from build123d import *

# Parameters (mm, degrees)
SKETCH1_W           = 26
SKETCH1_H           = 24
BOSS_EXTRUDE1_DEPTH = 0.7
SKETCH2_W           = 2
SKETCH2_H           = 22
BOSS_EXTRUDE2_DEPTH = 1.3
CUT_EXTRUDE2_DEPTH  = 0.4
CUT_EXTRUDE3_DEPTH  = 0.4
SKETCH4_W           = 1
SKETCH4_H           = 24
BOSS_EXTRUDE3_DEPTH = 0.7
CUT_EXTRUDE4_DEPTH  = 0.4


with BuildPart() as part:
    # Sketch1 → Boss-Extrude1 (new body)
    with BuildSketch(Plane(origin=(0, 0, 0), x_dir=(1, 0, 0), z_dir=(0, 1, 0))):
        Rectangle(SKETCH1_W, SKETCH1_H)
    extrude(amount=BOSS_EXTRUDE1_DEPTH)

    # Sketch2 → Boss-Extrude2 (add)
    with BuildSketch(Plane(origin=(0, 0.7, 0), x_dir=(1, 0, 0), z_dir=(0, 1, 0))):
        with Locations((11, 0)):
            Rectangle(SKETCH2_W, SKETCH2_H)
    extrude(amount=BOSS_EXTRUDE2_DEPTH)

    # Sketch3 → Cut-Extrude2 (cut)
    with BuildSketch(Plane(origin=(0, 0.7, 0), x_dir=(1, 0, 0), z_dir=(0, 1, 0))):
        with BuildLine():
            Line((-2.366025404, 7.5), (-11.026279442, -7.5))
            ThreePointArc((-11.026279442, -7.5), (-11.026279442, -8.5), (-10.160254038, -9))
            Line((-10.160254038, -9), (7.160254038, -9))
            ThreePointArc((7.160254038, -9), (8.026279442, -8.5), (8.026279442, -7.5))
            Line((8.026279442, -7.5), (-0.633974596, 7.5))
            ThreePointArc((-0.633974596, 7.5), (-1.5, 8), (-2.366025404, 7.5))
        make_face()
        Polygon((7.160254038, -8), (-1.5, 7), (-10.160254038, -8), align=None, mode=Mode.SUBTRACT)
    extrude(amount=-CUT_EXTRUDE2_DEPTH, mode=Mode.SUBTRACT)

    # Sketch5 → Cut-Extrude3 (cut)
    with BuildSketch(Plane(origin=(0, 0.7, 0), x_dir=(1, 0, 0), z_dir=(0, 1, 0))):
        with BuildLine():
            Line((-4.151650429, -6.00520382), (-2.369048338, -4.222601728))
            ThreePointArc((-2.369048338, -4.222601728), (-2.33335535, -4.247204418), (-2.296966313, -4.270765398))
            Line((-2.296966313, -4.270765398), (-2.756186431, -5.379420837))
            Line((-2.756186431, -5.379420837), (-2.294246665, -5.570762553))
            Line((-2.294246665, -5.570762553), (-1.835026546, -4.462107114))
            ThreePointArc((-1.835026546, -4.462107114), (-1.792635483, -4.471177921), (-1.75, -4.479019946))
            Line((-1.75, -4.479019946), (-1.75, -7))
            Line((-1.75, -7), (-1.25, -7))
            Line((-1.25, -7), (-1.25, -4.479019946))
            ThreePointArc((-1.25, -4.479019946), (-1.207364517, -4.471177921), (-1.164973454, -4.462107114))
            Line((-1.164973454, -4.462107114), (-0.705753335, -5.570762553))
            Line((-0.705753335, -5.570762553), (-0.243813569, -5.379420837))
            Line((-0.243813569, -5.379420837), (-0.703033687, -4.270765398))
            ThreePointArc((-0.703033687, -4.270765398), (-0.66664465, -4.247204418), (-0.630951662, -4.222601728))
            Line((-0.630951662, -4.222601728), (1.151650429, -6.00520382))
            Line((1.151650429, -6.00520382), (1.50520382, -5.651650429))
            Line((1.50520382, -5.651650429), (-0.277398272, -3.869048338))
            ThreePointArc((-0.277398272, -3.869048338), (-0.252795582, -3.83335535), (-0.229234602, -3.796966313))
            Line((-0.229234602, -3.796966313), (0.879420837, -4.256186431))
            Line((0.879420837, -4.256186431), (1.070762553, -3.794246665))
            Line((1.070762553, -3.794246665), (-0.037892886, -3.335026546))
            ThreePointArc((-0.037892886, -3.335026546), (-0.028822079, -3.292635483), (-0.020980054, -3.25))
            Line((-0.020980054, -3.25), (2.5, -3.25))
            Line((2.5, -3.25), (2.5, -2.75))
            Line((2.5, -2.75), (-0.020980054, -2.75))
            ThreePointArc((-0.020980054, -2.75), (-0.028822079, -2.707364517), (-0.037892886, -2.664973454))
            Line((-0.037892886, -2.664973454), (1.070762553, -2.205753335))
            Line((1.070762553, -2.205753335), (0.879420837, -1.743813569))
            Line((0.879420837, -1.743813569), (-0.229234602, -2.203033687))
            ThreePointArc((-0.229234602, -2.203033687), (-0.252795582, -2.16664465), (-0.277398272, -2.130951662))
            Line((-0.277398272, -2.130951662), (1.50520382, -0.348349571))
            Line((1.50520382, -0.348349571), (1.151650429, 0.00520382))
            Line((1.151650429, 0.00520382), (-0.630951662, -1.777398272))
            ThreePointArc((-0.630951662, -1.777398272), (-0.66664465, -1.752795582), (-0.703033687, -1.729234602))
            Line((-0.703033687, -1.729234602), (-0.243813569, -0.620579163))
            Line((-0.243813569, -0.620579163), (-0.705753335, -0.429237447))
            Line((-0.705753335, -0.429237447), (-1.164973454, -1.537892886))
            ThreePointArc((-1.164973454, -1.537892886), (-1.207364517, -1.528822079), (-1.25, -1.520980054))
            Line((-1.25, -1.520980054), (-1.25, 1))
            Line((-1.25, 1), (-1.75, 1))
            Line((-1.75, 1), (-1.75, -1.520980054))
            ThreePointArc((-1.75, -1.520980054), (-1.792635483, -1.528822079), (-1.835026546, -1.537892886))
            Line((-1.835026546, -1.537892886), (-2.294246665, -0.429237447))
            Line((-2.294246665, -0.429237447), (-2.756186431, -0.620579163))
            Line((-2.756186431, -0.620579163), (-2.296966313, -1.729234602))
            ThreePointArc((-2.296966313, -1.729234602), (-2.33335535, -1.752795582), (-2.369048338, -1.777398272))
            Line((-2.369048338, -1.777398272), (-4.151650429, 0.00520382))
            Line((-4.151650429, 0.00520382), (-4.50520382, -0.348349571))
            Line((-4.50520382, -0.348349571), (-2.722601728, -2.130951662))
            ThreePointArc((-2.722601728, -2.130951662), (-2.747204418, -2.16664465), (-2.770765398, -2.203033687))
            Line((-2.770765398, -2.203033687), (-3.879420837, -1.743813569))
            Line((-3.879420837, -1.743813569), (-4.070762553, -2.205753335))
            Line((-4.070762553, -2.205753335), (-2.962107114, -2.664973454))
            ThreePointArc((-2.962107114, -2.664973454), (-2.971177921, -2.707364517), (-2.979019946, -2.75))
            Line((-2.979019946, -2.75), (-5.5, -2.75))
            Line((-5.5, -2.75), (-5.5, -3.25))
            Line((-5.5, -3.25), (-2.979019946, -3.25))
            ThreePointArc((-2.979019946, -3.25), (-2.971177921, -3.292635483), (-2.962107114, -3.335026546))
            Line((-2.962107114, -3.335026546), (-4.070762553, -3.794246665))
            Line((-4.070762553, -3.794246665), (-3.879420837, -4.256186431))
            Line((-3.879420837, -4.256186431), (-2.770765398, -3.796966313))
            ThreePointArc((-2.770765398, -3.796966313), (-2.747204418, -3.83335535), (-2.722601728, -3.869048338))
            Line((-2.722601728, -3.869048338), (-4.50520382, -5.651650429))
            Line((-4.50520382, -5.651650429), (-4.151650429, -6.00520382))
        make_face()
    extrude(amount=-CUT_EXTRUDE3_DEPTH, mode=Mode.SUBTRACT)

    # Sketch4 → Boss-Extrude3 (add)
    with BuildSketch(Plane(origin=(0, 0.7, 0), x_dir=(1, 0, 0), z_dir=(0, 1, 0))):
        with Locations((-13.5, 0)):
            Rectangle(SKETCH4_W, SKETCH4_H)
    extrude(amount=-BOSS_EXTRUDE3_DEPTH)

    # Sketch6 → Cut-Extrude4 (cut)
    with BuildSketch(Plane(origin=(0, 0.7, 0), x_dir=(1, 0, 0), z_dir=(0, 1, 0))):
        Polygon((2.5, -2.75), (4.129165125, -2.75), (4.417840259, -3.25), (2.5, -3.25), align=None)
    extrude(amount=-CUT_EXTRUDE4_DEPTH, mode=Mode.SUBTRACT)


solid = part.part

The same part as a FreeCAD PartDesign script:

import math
import FreeCAD as App
import Part
import Sketcher
from FreeCAD import Vector
Q = App.Units.Quantity

doc = App.newDocument("Part")
params = doc.addObject("Spreadsheet::Sheet", "Params")
for row, (alias, value) in enumerate([
    ("sketch1_width", "26 mm"),
    ("sketch1_height", "24 mm"),
    ("pad1_length", "0.7 mm"),
    ("sketch2_width", "2 mm"),
    ("sketch2_height", "22 mm"),
    ("pad2_length", "1.3 mm"),
    ("sketch3_radius", "1 mm"),
    ("pocket1_length", "0.4 mm"),
    ("sketch4_radius", "1.5 mm"),
    ("sketch4_width", "0.5 mm"),
    ("sketch4_length", "1.2 mm"),
    ("sketch4_length2", "0.5 mm"),
    ("pocket2_length", "0.4 mm"),
    ("sketch5_width", "1 mm"),
    ("sketch5_height", "24 mm"),
    ("pad3_length", "0.7 mm"),
    ("sketch6_height", "0.5 mm"),
    ("pocket3_length", "0.4 mm"),
], start=1):
    params.set(f"A{row}", alias)
    params.set(f"B{row}", "=" + value)
    params.setAlias(f"B{row}", alias)

body = doc.addObject("PartDesign::Body", "Body")

# Sketch on XZ plane
sketch1 = doc.addObject("Sketcher::SketchObject", "Sketch")
body.addObject(sketch1)
sketch1.AttachmentSupport = (doc.XZ_Plane, [""])
sketch1.MapMode = "FlatFace"
sketch1.addGeometry(Part.LineSegment(Vector(-13, -12, 0), Vector(-13, 12, 0)), False)
sketch1.addGeometry(Part.LineSegment(Vector(-13, 12, 0), Vector(13, 12, 0)), False)
sketch1.addGeometry(Part.LineSegment(Vector(13, 12, 0), Vector(13, -12, 0)), False)
sketch1.addGeometry(Part.LineSegment(Vector(13, -12, 0), Vector(-13, -12, 0)), False)
sketch1.addConstraint(Sketcher.Constraint("Coincident", 0, 2, 1, 1))
sketch1.addConstraint(Sketcher.Constraint("Coincident", 1, 2, 2, 1))
sketch1.addConstraint(Sketcher.Constraint("Coincident", 2, 2, 3, 1))
sketch1.addConstraint(Sketcher.Constraint("Coincident", 3, 2, 0, 1))
sketch1.addConstraint(Sketcher.Constraint("Vertical", 0))
sketch1.addConstraint(Sketcher.Constraint("Horizontal", 1))
sketch1.addConstraint(Sketcher.Constraint("Vertical", 2))
sketch1.addConstraint(Sketcher.Constraint("Horizontal", 3))
sketch1.addConstraint(Sketcher.Constraint("Symmetric", 0, 2, 2, 2, -1, 1))
sketch1.addConstraint(Sketcher.Constraint("DistanceX", 1, 1, 1, 2, Q("26 mm")))
sketch1.addConstraint(Sketcher.Constraint("DistanceY", 0, 1, 0, 2, Q("24 mm")))
sketch1.setExpression("Constraints[9]", "Params.sketch1_width")
sketch1.setExpression("Constraints[10]", "Params.sketch1_height")
pad1 = doc.addObject("PartDesign::Pad", "Pad")
body.addObject(pad1)
pad1.Profile = sketch1
pad1.setExpression("Length", "Params.pad1_length")
pad1.Reversed = True

# Sketch on XZ plane
sketch2 = doc.addObject("Sketcher::SketchObject", "Sketch001")
body.addObject(sketch2)
sketch2.AttachmentSupport = (doc.XZ_Plane, [""])
sketch2.MapMode = "FlatFace"
sketch2.AttachmentOffset = App.Placement(Vector(0, 0, -0.7), App.Rotation())
sketch2.addGeometry(Part.LineSegment(Vector(10, -11, 0), Vector(10, 11, 0)), False)
sketch2.addGeometry(Part.LineSegment(Vector(10, 11, 0), Vector(12, 11, 0)), False)
sketch2.addGeometry(Part.LineSegment(Vector(12, 11, 0), Vector(12, -11, 0)), False)
sketch2.addGeometry(Part.LineSegment(Vector(12, -11, 0), Vector(10, -11, 0)), False)
sketch2.addConstraint(Sketcher.Constraint("Coincident", 0, 2, 1, 1))
sketch2.addConstraint(Sketcher.Constraint("Coincident", 1, 2, 2, 1))
sketch2.addConstraint(Sketcher.Constraint("Coincident", 2, 2, 3, 1))
sketch2.addConstraint(Sketcher.Constraint("Coincident", 3, 2, 0, 1))
sketch2.addConstraint(Sketcher.Constraint("Vertical", 0))
sketch2.addConstraint(Sketcher.Constraint("Horizontal", 1))
sketch2.addConstraint(Sketcher.Constraint("Vertical", 2))
sketch2.addConstraint(Sketcher.Constraint("Horizontal", 3))
sketch2.addConstraint(Sketcher.Constraint("DistanceX", 1, 1, 1, 2, Q("2 mm")))
sketch2.addConstraint(Sketcher.Constraint("DistanceY", 0, 1, 0, 2, Q("22 mm")))
sketch2.addConstraint(Sketcher.Constraint("DistanceX", -1, 1, 0, 2, Q("10 mm")))
sketch2.addConstraint(Sketcher.Constraint("DistanceY", -1, 1, 0, 2, Q("11 mm")))
sketch2.setExpression("Constraints[8]", "Params.sketch2_width")
sketch2.setExpression("Constraints[9]", "Params.sketch2_height")
pad2 = doc.addObject("PartDesign::Pad", "Pad001")
body.addObject(pad2)
pad2.Profile = sketch2
pad2.setExpression("Length", "Params.pad2_length")
pad2.Reversed = True

# Sketch on XZ plane
sketch3 = doc.addObject("Sketcher::SketchObject", "Sketch002")
body.addObject(sketch3)
sketch3.AttachmentSupport = (doc.XZ_Plane, [""])
sketch3.MapMode = "FlatFace"
sketch3.AttachmentOffset = App.Placement(Vector(0, 0, -0.7), App.Rotation())
sketch3.addGeometry(Part.LineSegment(Vector(-2.4, -7.5, 0), Vector(-11, 7.5, 0)), False)
sketch3.addGeometry(Part.ArcOfCircle(Part.Circle(Vector(-10.2, 8, 0), Vector(0, 0, 1), 1), math.radians(90), math.radians(210)), False)
sketch3.addGeometry(Part.LineSegment(Vector(-10.2, 9, 0), Vector(7.2, 9, 0)), False)
sketch3.addGeometry(Part.ArcOfCircle(Part.Circle(Vector(7.2, 8, 0), Vector(0, 0, 1), 1), math.radians(-30), math.radians(90)), False)
sketch3.addGeometry(Part.LineSegment(Vector(8, 7.5, 0), Vector(-0.6, -7.5, 0)), False)
sketch3.addGeometry(Part.ArcOfCircle(Part.Circle(Vector(-1.5, -7, 0), Vector(0, 0, 1), 1), math.radians(-150), math.radians(-30)), False)
sketch3.addGeometry(Part.LineSegment(Vector(-1.5, -7, 0), Vector(7.2, 8, 0)), False)
sketch3.addGeometry(Part.LineSegment(Vector(7.2, 8, 0), Vector(-10.2, 8, 0)), False)
sketch3.addGeometry(Part.LineSegment(Vector(-10.2, 8, 0), Vector(-1.5, -7, 0)), False)
sketch3.addConstraint(Sketcher.Constraint("Tangent", 0, 2, 1, 2))
sketch3.addConstraint(Sketcher.Constraint("Tangent", 1, 1, 2, 1))
sketch3.addConstraint(Sketcher.Constraint("Tangent", 2, 2, 3, 2))
sketch3.addConstraint(Sketcher.Constraint("Tangent", 3, 1, 4, 1))
sketch3.addConstraint(Sketcher.Constraint("Tangent", 4, 2, 5, 2))
sketch3.addConstraint(Sketcher.Constraint("Tangent", 5, 1, 0, 1))
sketch3.addConstraint(Sketcher.Constraint("Coincident", 6, 2, 7, 1))
sketch3.addConstraint(Sketcher.Constraint("Coincident", 7, 2, 8, 1))
sketch3.addConstraint(Sketcher.Constraint("Coincident", 8, 2, 6, 1))
sketch3.addConstraint(Sketcher.Constraint("Horizontal", 2))
sketch3.addConstraint(Sketcher.Constraint("Horizontal", 7))
sketch3.addConstraint(Sketcher.Constraint("Coincident", 6, 2, 3, 3))
sketch3.addConstraint(Sketcher.Constraint("Coincident", 7, 2, 1, 3))
sketch3.addConstraint(Sketcher.Constraint("Coincident", 8, 2, 5, 3))
sketch3.addConstraint(Sketcher.Constraint("Equal", 3, 5))
sketch3.addConstraint(Sketcher.Constraint("Horizontal", 0, 2, 3, 1))
sketch3.addConstraint(Sketcher.Constraint("Radius", 1, Q("1 mm")))
sketch3.addConstraint(Sketcher.Constraint("Angle", 0, Q("120 deg")))
sketch3.addConstraint(Sketcher.Constraint("DistanceY", -1, 1, 1, 3, Q("8 mm")))
sketch3.addConstraint(Sketcher.Constraint("DistanceY", 5, 3, -1, 1, Q("7 mm")))
sketch3.addConstraint(Sketcher.Constraint("DistanceX", 5, 3, -1, 1, Q("1.5 mm")))
sketch3.setExpression("Constraints[16]", "Params.sketch3_radius")
pocket1 = doc.addObject("PartDesign::Pocket", "Pocket")
body.addObject(pocket1)
pocket1.Profile = sketch3
pocket1.setExpression("Length", "Params.pocket1_length")
pocket1.Reversed = True

# Sketch on XZ plane
sketch4 = doc.addObject("Sketcher::SketchObject", "Sketch003")
body.addObject(sketch4)
sketch4.AttachmentSupport = (doc.XZ_Plane, [""])
sketch4.MapMode = "FlatFace"
sketch4.AttachmentOffset = App.Placement(Vector(0, 0, -0.7), App.Rotation())
sketch4.addGeometry(Part.LineSegment(Vector(-4.15, 6.01, 0), Vector(-2.37, 4.22, 0)), False)
sketch4.addGeometry(Part.ArcOfCircle(Part.Circle(Vector(-1.5, 3, 0), Vector(0, 0, 1), 1.5), math.radians(122.09), math.radians(125.41)), False)
sketch4.addGeometry(Part.LineSegment(Vector(-2.3, 4.27, 0), Vector(-2.76, 5.38, 0)), False)
sketch4.addGeometry(Part.LineSegment(Vector(-2.76, 5.38, 0), Vector(-2.29, 5.57, 0)), False)
sketch4.addGeometry(Part.LineSegment(Vector(-2.29, 5.57, 0), Vector(-1.84, 4.46, 0)), False)
sketch4.addGeometry(Part.ArcOfCircle(Part.Circle(Vector(-1.5, 3, 0), Vector(0, 0, 1), 1.5), math.radians(99.59), math.radians(102.91)), False)
sketch4.addGeometry(Part.LineSegment(Vector(-1.75, 4.48, 0), Vector(-1.75, 7, 0)), False)
sketch4.addGeometry(Part.LineSegment(Vector(-1.75, 7, 0), Vector(-1.25, 7, 0)), False)
sketch4.addGeometry(Part.LineSegment(Vector(-1.25, 7, 0), Vector(-1.25, 4.48, 0)), False)
sketch4.addGeometry(Part.ArcOfCircle(Part.Circle(Vector(-1.5, 3, 0), Vector(0, 0, 1), 1.5), math.radians(77.09), math.radians(80.41)), False)
sketch4.addGeometry(Part.LineSegment(Vector(-1.16, 4.46, 0), Vector(-0.71, 5.57, 0)), False)
sketch4.addGeometry(Part.LineSegment(Vector(-0.71, 5.57, 0), Vector(-0.24, 5.38, 0)), False)
sketch4.addGeometry(Part.LineSegment(Vector(-0.24, 5.38, 0), Vector(-0.7, 4.27, 0)), False)
sketch4.addGeometry(Part.ArcOfCircle(Part.Circle(Vector(-1.5, 3, 0), Vector(0, 0, 1), 1.5), math.radians(54.59), math.radians(57.91)), False)
sketch4.addGeometry(Part.LineSegment(Vector(-0.63, 4.22, 0), Vector(1.15, 6.01, 0)), False)
sketch4.addGeometry(Part.LineSegment(Vector(1.15, 6.01, 0), Vector(1.51, 5.65, 0)), False)
sketch4.addGeometry(Part.LineSegment(Vector(1.51, 5.65, 0), Vector(-0.28, 3.87, 0)), False)
sketch4.addGeometry(Part.ArcOfCircle(Part.Circle(Vector(-1.5, 3, 0), Vector(0, 0, 1), 1.5), math.radians(32.09), math.radians(35.41)), False)
sketch4.addGeometry(Part.LineSegment(Vector(-0.23, 3.8, 0), Vector(0.88, 4.26, 0)), False)
sketch4.addGeometry(Part.LineSegment(Vector(0.88, 4.26, 0), Vector(1.07, 3.79, 0)), False)
sketch4.addGeometry(Part.LineSegment(Vector(1.07, 3.79, 0), Vector(-0.04, 3.34, 0)), False)
sketch4.addGeometry(Part.ArcOfCircle(Part.Circle(Vector(-1.5, 3, 0), Vector(0, 0, 1), 1.5), math.radians(9.59), math.radians(12.91)), False)
sketch4.addGeometry(Part.LineSegment(Vector(-0.02, 3.25, 0), Vector(2.5, 3.25, 0)), False)
sketch4.addGeometry(Part.LineSegment(Vector(2.5, 3.25, 0), Vector(2.5, 2.75, 0)), False)
sketch4.addGeometry(Part.LineSegment(Vector(2.5, 2.75, 0), Vector(-0.02, 2.75, 0)), False)
sketch4.addGeometry(Part.ArcOfCircle(Part.Circle(Vector(-1.5, 3, 0), Vector(0, 0, 1), 1.5), math.radians(-12.91), math.radians(-9.59)), False)
sketch4.addGeometry(Part.LineSegment(Vector(-0.04, 2.66, 0), Vector(1.07, 2.21, 0)), False)
sketch4.addGeometry(Part.LineSegment(Vector(1.07, 2.21, 0), Vector(0.88, 1.74, 0)), False)
sketch4.addGeometry(Part.LineSegment(Vector(0.88, 1.74, 0), Vector(-0.23, 2.2, 0)), False)
sketch4.addGeometry(Part.ArcOfCircle(Part.Circle(Vector(-1.5, 3, 0), Vector(0, 0, 1), 1.5), math.radians(-35.41), math.radians(-32.09)), False)
sketch4.addGeometry(Part.LineSegment(Vector(-0.28, 2.13, 0), Vector(1.51, 0.35, 0)), False)
sketch4.addGeometry(Part.LineSegment(Vector(1.51, 0.35, 0), Vector(1.15, -0.01, 0)), False)
sketch4.addGeometry(Part.LineSegment(Vector(1.15, -0.01, 0), Vector(-0.63, 1.78, 0)), False)
sketch4.addGeometry(Part.ArcOfCircle(Part.Circle(Vector(-1.5, 3, 0), Vector(0, 0, 1), 1.5), math.radians(-57.91), math.radians(-54.59)), False)
sketch4.addGeometry(Part.LineSegment(Vector(-0.7, 1.73, 0), Vector(-0.24, 0.62, 0)), False)
sketch4.addGeometry(Part.LineSegment(Vector(-0.24, 0.62, 0), Vector(-0.71, 0.43, 0)), False)
sketch4.addGeometry(Part.LineSegment(Vector(-0.71, 0.43, 0), Vector(-1.16, 1.54, 0)), False)
sketch4.addGeometry(Part.ArcOfCircle(Part.Circle(Vector(-1.5, 3, 0), Vector(0, 0, 1), 1.5), math.radians(-80.41), math.radians(-77.09)), False)
sketch4.addGeometry(Part.LineSegment(Vector(-1.25, 1.52, 0), Vector(-1.25, -1, 0)), False)
sketch4.addGeometry(Part.LineSegment(Vector(-1.25, -1, 0), Vector(-1.75, -1, 0)), False)
sketch4.addGeometry(Part.LineSegment(Vector(-1.75, -1, 0), Vector(-1.75, 1.52, 0)), False)
sketch4.addGeometry(Part.ArcOfCircle(Part.Circle(Vector(-1.5, 3, 0), Vector(0, 0, 1), 1.5), math.radians(-102.91), math.radians(-99.59)), False)
sketch4.addGeometry(Part.LineSegment(Vector(-1.84, 1.54, 0), Vector(-2.29, 0.43, 0)), False)
sketch4.addGeometry(Part.LineSegment(Vector(-2.29, 0.43, 0), Vector(-2.76, 0.62, 0)), False)
sketch4.addGeometry(Part.LineSegment(Vector(-2.76, 0.62, 0), Vector(-2.3, 1.73, 0)), False)
sketch4.addGeometry(Part.ArcOfCircle(Part.Circle(Vector(-1.5, 3, 0), Vector(0, 0, 1), 1.5), math.radians(-125.41), math.radians(-122.09)), False)
sketch4.addGeometry(Part.LineSegment(Vector(-2.37, 1.78, 0), Vector(-4.15, -0.01, 0)), False)
sketch4.addGeometry(Part.LineSegment(Vector(-4.15, -0.01, 0), Vector(-4.51, 0.35, 0)), False)
sketch4.addGeometry(Part.LineSegment(Vector(-4.51, 0.35, 0), Vector(-2.72, 2.13, 0)), False)
sketch4.addGeometry(Part.ArcOfCircle(Part.Circle(Vector(-1.5, 3, 0), Vector(0, 0, 1), 1.5), math.radians(-147.91), math.radians(-144.59)), False)
sketch4.addGeometry(Part.LineSegment(Vector(-2.77, 2.2, 0), Vector(-3.88, 1.74, 0)), False)
sketch4.addGeometry(Part.LineSegment(Vector(-3.88, 1.74, 0), Vector(-4.07, 2.21, 0)), False)
sketch4.addGeometry(Part.LineSegment(Vector(-4.07, 2.21, 0), Vector(-2.96, 2.66, 0)), False)
sketch4.addGeometry(Part.ArcOfCircle(Part.Circle(Vector(-1.5, 3, 0), Vector(0, 0, 1), 1.5), math.radians(-170.41), math.radians(-167.09)), False)
sketch4.addGeometry(Part.LineSegment(Vector(-2.98, 2.75, 0), Vector(-5.5, 2.75, 0)), False)
sketch4.addGeometry(Part.LineSegment(Vector(-5.5, 2.75, 0), Vector(-5.5, 3.25, 0)), False)
sketch4.addGeometry(Part.LineSegment(Vector(-5.5, 3.25, 0), Vector(-2.98, 3.25, 0)), False)
sketch4.addGeometry(Part.ArcOfCircle(Part.Circle(Vector(-1.5, 3, 0), Vector(0, 0, 1), 1.5), math.radians(167.09), math.radians(170.41)), False)
sketch4.addGeometry(Part.LineSegment(Vector(-2.96, 3.34, 0), Vector(-4.07, 3.79, 0)), False)
sketch4.addGeometry(Part.LineSegment(Vector(-4.07, 3.79, 0), Vector(-3.88, 4.26, 0)), False)
sketch4.addGeometry(Part.LineSegment(Vector(-3.88, 4.26, 0), Vector(-2.77, 3.8, 0)), False)
sketch4.addGeometry(Part.ArcOfCircle(Part.Circle(Vector(-1.5, 3, 0), Vector(0, 0, 1), 1.5), math.radians(144.59), math.radians(147.91)), False)
sketch4.addGeometry(Part.LineSegment(Vector(-2.72, 3.87, 0), Vector(-4.51, 5.65, 0)), False)
sketch4.addGeometry(Part.LineSegment(Vector(-4.51, 5.65, 0), Vector(-4.15, 6.01, 0)), False)
sketch4.addConstraint(Sketcher.Constraint("Coincident", 0, 2, 1, 2))
sketch4.addConstraint(Sketcher.Constraint("Coincident", 1, 1, 2, 1))
sketch4.addConstraint(Sketcher.Constraint("Coincident", 2, 2, 3, 1))
sketch4.addConstraint(Sketcher.Constraint("Coincident", 3, 2, 4, 1))
sketch4.addConstraint(Sketcher.Constraint("Coincident", 4, 2, 5, 2))
sketch4.addConstraint(Sketcher.Constraint("Coincident", 5, 1, 6, 1))
sketch4.addConstraint(Sketcher.Constraint("Coincident", 6, 2, 7, 1))
sketch4.addConstraint(Sketcher.Constraint("Coincident", 7, 2, 8, 1))
sketch4.addConstraint(Sketcher.Constraint("Coincident", 8, 2, 9, 2))
sketch4.addConstraint(Sketcher.Constraint("Coincident", 9, 1, 10, 1))
sketch4.addConstraint(Sketcher.Constraint("Coincident", 10, 2, 11, 1))
sketch4.addConstraint(Sketcher.Constraint("Coincident", 11, 2, 12, 1))
sketch4.addConstraint(Sketcher.Constraint("Coincident", 12, 2, 13, 2))
sketch4.addConstraint(Sketcher.Constraint("Coincident", 13, 1, 14, 1))
sketch4.addConstraint(Sketcher.Constraint("Coincident", 14, 2, 15, 1))
sketch4.addConstraint(Sketcher.Constraint("Coincident", 15, 2, 16, 1))
sketch4.addConstraint(Sketcher.Constraint("Coincident", 16, 2, 17, 2))
sketch4.addConstraint(Sketcher.Constraint("Coincident", 17, 1, 18, 1))
sketch4.addConstraint(Sketcher.Constraint("Coincident", 18, 2, 19, 1))
sketch4.addConstraint(Sketcher.Constraint("Coincident", 19, 2, 20, 1))
sketch4.addConstraint(Sketcher.Constraint("Coincident", 20, 2, 21, 2))
sketch4.addConstraint(Sketcher.Constraint("Coincident", 21, 1, 22, 1))
sketch4.addConstraint(Sketcher.Constraint("Coincident", 22, 2, 23, 1))
sketch4.addConstraint(Sketcher.Constraint("Coincident", 23, 2, 24, 1))
sketch4.addConstraint(Sketcher.Constraint("Coincident", 24, 2, 25, 2))
sketch4.addConstraint(Sketcher.Constraint("Coincident", 25, 1, 26, 1))
sketch4.addConstraint(Sketcher.Constraint("Coincident", 26, 2, 27, 1))
sketch4.addConstraint(Sketcher.Constraint("Coincident", 27, 2, 28, 1))
sketch4.addConstraint(Sketcher.Constraint("Coincident", 28, 2, 29, 2))
sketch4.addConstraint(Sketcher.Constraint("Coincident", 29, 1, 30, 1))
sketch4.addConstraint(Sketcher.Constraint("Coincident", 30, 2, 31, 1))
sketch4.addConstraint(Sketcher.Constraint("Coincident", 31, 2, 32, 1))
sketch4.addConstraint(Sketcher.Constraint("Coincident", 32, 2, 33, 2))
sketch4.addConstraint(Sketcher.Constraint("Coincident", 33, 1, 34, 1))
sketch4.addConstraint(Sketcher.Constraint("Coincident", 34, 2, 35, 1))
sketch4.addConstraint(Sketcher.Constraint("Coincident", 35, 2, 36, 1))
sketch4.addConstraint(Sketcher.Constraint("Coincident", 36, 2, 37, 2))
sketch4.addConstraint(Sketcher.Constraint("Coincident", 37, 1, 38, 1))
sketch4.addConstraint(Sketcher.Constraint("Coincident", 38, 2, 39, 1))
sketch4.addConstraint(Sketcher.Constraint("Coincident", 39, 2, 40, 1))
sketch4.addConstraint(Sketcher.Constraint("Coincident", 40, 2, 41, 2))
sketch4.addConstraint(Sketcher.Constraint("Coincident", 41, 1, 42, 1))
sketch4.addConstraint(Sketcher.Constraint("Coincident", 42, 2, 43, 1))
sketch4.addConstraint(Sketcher.Constraint("Coincident", 43, 2, 44, 1))
sketch4.addConstraint(Sketcher.Constraint("Coincident", 44, 2, 45, 2))
sketch4.addConstraint(Sketcher.Constraint("Coincident", 45, 1, 46, 1))
sketch4.addConstraint(Sketcher.Constraint("Coincident", 46, 2, 47, 1))
sketch4.addConstraint(Sketcher.Constraint("Coincident", 47, 2, 48, 1))
sketch4.addConstraint(Sketcher.Constraint("Coincident", 48, 2, 49, 2))
sketch4.addConstraint(Sketcher.Constraint("Coincident", 49, 1, 50, 1))
sketch4.addConstraint(Sketcher.Constraint("Coincident", 50, 2, 51, 1))
sketch4.addConstraint(Sketcher.Constraint("Coincident", 51, 2, 52, 1))
sketch4.addConstraint(Sketcher.Constraint("Coincident", 52, 2, 53, 2))
sketch4.addConstraint(Sketcher.Constraint("Coincident", 53, 1, 54, 1))
sketch4.addConstraint(Sketcher.Constraint("Coincident", 54, 2, 55, 1))
sketch4.addConstraint(Sketcher.Constraint("Coincident", 55, 2, 56, 1))
sketch4.addConstraint(Sketcher.Constraint("Coincident", 56, 2, 57, 2))
sketch4.addConstraint(Sketcher.Constraint("Coincident", 57, 1, 58, 1))
sketch4.addConstraint(Sketcher.Constraint("Coincident", 58, 2, 59, 1))
sketch4.addConstraint(Sketcher.Constraint("Coincident", 59, 2, 60, 1))
sketch4.addConstraint(Sketcher.Constraint("Coincident", 60, 2, 61, 2))
sketch4.addConstraint(Sketcher.Constraint("Coincident", 61, 1, 62, 1))
sketch4.addConstraint(Sketcher.Constraint("Coincident", 62, 2, 63, 1))
sketch4.addConstraint(Sketcher.Constraint("Coincident", 63, 2, 0, 1))
sketch4.addConstraint(Sketcher.Constraint("Vertical", 6))
sketch4.addConstraint(Sketcher.Constraint("Horizontal", 7))
sketch4.addConstraint(Sketcher.Constraint("Vertical", 8))
sketch4.addConstraint(Sketcher.Constraint("Horizontal", 22))
sketch4.addConstraint(Sketcher.Constraint("Vertical", 23))
sketch4.addConstraint(Sketcher.Constraint("Horizontal", 24))
sketch4.addConstraint(Sketcher.Constraint("Vertical", 38))
sketch4.addConstraint(Sketcher.Constraint("Horizontal", 39))
sketch4.addConstraint(Sketcher.Constraint("Vertical", 40))
sketch4.addConstraint(Sketcher.Constraint("Horizontal", 54))
sketch4.addConstraint(Sketcher.Constraint("Vertical", 55))
sketch4.addConstraint(Sketcher.Constraint("Horizontal", 56))
sketch4.addConstraint(Sketcher.Constraint("Coincident", 5, 3, 1, 3))
sketch4.addConstraint(Sketcher.Constraint("Coincident", 9, 3, 1, 3))
sketch4.addConstraint(Sketcher.Constraint("Coincident", 13, 3, 1, 3))
sketch4.addConstraint(Sketcher.Constraint("Coincident", 17, 3, 1, 3))
sketch4.addConstraint(Sketcher.Constraint("Coincident", 21, 3, 1, 3))
sketch4.addConstraint(Sketcher.Constraint("Coincident", 25, 3, 1, 3))
sketch4.addConstraint(Sketcher.Constraint("Coincident", 29, 3, 1, 3))
sketch4.addConstraint(Sketcher.Constraint("Coincident", 33, 3, 1, 3))
sketch4.addConstraint(Sketcher.Constraint("Coincident", 37, 3, 1, 3))
sketch4.addConstraint(Sketcher.Constraint("Coincident", 41, 3, 1, 3))
sketch4.addConstraint(Sketcher.Constraint("Coincident", 45, 3, 1, 3))
sketch4.addConstraint(Sketcher.Constraint("Coincident", 49, 3, 1, 3))
sketch4.addConstraint(Sketcher.Constraint("Coincident", 53, 3, 1, 3))
sketch4.addConstraint(Sketcher.Constraint("Coincident", 57, 3, 1, 3))
sketch4.addConstraint(Sketcher.Constraint("Coincident", 61, 3, 1, 3))
sketch4.addConstraint(Sketcher.Constraint("Equal", 1, 5))
sketch4.addConstraint(Sketcher.Constraint("Equal", 5, 9))
sketch4.addConstraint(Sketcher.Constraint("Equal", 9, 13))
sketch4.addConstraint(Sketcher.Constraint("Equal", 13, 17))
sketch4.addConstraint(Sketcher.Constraint("Equal", 17, 21))
sketch4.addConstraint(Sketcher.Constraint("Equal", 21, 25))
sketch4.addConstraint(Sketcher.Constraint("Equal", 25, 29))
sketch4.addConstraint(Sketcher.Constraint("Equal", 29, 33))
sketch4.addConstraint(Sketcher.Constraint("Equal", 33, 37))
sketch4.addConstraint(Sketcher.Constraint("Equal", 37, 41))
sketch4.addConstraint(Sketcher.Constraint("Equal", 41, 45))
sketch4.addConstraint(Sketcher.Constraint("Equal", 45, 49))
sketch4.addConstraint(Sketcher.Constraint("Equal", 49, 53))
sketch4.addConstraint(Sketcher.Constraint("Equal", 53, 57))
sketch4.addConstraint(Sketcher.Constraint("Equal", 57, 61))
sketch4.addConstraint(Sketcher.Constraint("Perpendicular", 2, 3))
sketch4.addConstraint(Sketcher.Constraint("Perpendicular", 3, 4))
sketch4.addConstraint(Sketcher.Constraint("Perpendicular", 10, 11))
sketch4.addConstraint(Sketcher.Constraint("Perpendicular", 11, 12))
sketch4.addConstraint(Sketcher.Constraint("Perpendicular", 0, 14))
sketch4.addConstraint(Sketcher.Constraint("Perpendicular", 14, 15))
sketch4.addConstraint(Sketcher.Constraint("Perpendicular", 15, 16))
sketch4.addConstraint(Sketcher.Constraint("Perpendicular", 4, 18))
sketch4.addConstraint(Sketcher.Constraint("Perpendicular", 18, 19))
sketch4.addConstraint(Sketcher.Constraint("Perpendicular", 19, 20))
sketch4.addConstraint(Sketcher.Constraint("Perpendicular", 12, 26))
sketch4.addConstraint(Sketcher.Constraint("Perpendicular", 26, 27))
sketch4.addConstraint(Sketcher.Constraint("Perpendicular", 27, 28))
sketch4.addConstraint(Sketcher.Constraint("Perpendicular", 16, 30))
sketch4.addConstraint(Sketcher.Constraint("Perpendicular", 30, 31))
sketch4.addConstraint(Sketcher.Constraint("Perpendicular", 31, 32))
sketch4.addConstraint(Sketcher.Constraint("Perpendicular", 20, 34))
sketch4.addConstraint(Sketcher.Constraint("Perpendicular", 34, 35))
sketch4.addConstraint(Sketcher.Constraint("Perpendicular", 35, 36))
sketch4.addConstraint(Sketcher.Constraint("Perpendicular", 28, 42))
sketch4.addConstraint(Sketcher.Constraint("Perpendicular", 42, 43))
sketch4.addConstraint(Sketcher.Constraint("Perpendicular", 43, 44))
sketch4.addConstraint(Sketcher.Constraint("Perpendicular", 32, 46))
sketch4.addConstraint(Sketcher.Constraint("Perpendicular", 46, 47))
sketch4.addConstraint(Sketcher.Constraint("Perpendicular", 47, 48))
sketch4.addConstraint(Sketcher.Constraint("Perpendicular", 36, 50))
sketch4.addConstraint(Sketcher.Constraint("Perpendicular", 50, 51))
sketch4.addConstraint(Sketcher.Constraint("Perpendicular", 51, 52))
sketch4.addConstraint(Sketcher.Constraint("Perpendicular", 44, 58))
sketch4.addConstraint(Sketcher.Constraint("Perpendicular", 58, 59))
sketch4.addConstraint(Sketcher.Constraint("Perpendicular", 59, 60))
sketch4.addConstraint(Sketcher.Constraint("Perpendicular", 48, 62))
sketch4.addConstraint(Sketcher.Constraint("Perpendicular", 62, 63))
sketch4.addConstraint(Sketcher.Constraint("Horizontal", 5, 1, 8, 2))
sketch4.addConstraint(Sketcher.Constraint("Horizontal", 4, 2, 9, 1))
sketch4.addConstraint(Sketcher.Constraint("Horizontal", 3, 2, 10, 2))
sketch4.addConstraint(Sketcher.Constraint("Horizontal", 2, 2, 11, 2))
sketch4.addConstraint(Sketcher.Constraint("Horizontal", 1, 1, 12, 2))
sketch4.addConstraint(Sketcher.Constraint("Horizontal", 0, 2, 13, 1))
sketch4.addConstraint(Sketcher.Constraint("Horizontal", 37, 1, 40, 2))
sketch4.addConstraint(Sketcher.Constraint("Horizontal", 36, 2, 41, 1))
sketch4.addConstraint(Sketcher.Constraint("Horizontal", 35, 2, 42, 2))
sketch4.addConstraint(Sketcher.Constraint("Horizontal", 34, 2, 43, 2))
sketch4.addConstraint(Sketcher.Constraint("Horizontal", 32, 2, 45, 1))
sketch4.addConstraint(Sketcher.Constraint("Horizontal", 31, 2, 46, 2))
sketch4.addConstraint(Sketcher.Constraint("Horizontal", 30, 2, 47, 2))
sketch4.addConstraint(Sketcher.Constraint("Horizontal", 29, 1, 48, 2))
sketch4.addConstraint(Sketcher.Constraint("Horizontal", 28, 2, 49, 1))
sketch4.addConstraint(Sketcher.Constraint("Horizontal", 27, 2, 50, 2))
sketch4.addConstraint(Sketcher.Constraint("Horizontal", 26, 2, 51, 2))
sketch4.addConstraint(Sketcher.Constraint("Horizontal", 24, 2, 53, 1))
sketch4.addConstraint(Sketcher.Constraint("Horizontal", 22, 2, 55, 2))
sketch4.addConstraint(Sketcher.Constraint("Horizontal", 20, 2, 57, 1))
sketch4.addConstraint(Sketcher.Constraint("Horizontal", 19, 2, 58, 2))
sketch4.addConstraint(Sketcher.Constraint("Horizontal", 18, 2, 59, 2))
sketch4.addConstraint(Sketcher.Constraint("Horizontal", 16, 2, 61, 1))
sketch4.addConstraint(Sketcher.Constraint("Horizontal", 15, 2, 62, 2))
sketch4.addConstraint(Sketcher.Constraint("Vertical", 21, 1, 24, 2))
sketch4.addConstraint(Sketcher.Constraint("Vertical", 20, 2, 25, 1))
sketch4.addConstraint(Sketcher.Constraint("Vertical", 19, 2, 26, 2))
sketch4.addConstraint(Sketcher.Constraint("Vertical", 18, 2, 27, 2))
sketch4.addConstraint(Sketcher.Constraint("Vertical", 16, 2, 29, 1))
sketch4.addConstraint(Sketcher.Constraint("Vertical", 15, 2, 30, 2))
sketch4.addConstraint(Sketcher.Constraint("Vertical", 14, 2, 31, 2))
sketch4.addConstraint(Sketcher.Constraint("Vertical", 12, 2, 33, 1))
sketch4.addConstraint(Sketcher.Constraint("Vertical", 11, 2, 34, 2))
sketch4.addConstraint(Sketcher.Constraint("Vertical", 10, 2, 35, 2))
sketch4.addConstraint(Sketcher.Constraint("Vertical", 8, 2, 37, 1))
sketch4.addConstraint(Sketcher.Constraint("Equal", 24, 54))
sketch4.addConstraint(Sketcher.Constraint("Equal", 56, 6))
sketch4.addConstraint(Sketcher.Constraint("Equal", 39, 23))
sketch4.addConstraint(Sketcher.Constraint("Equal", 8, 38))
sketch4.addConstraint(Sketcher.Constraint("Equal", 2, 4))
sketch4.addConstraint(Sketcher.Constraint("Equal", 11, 15))
sketch4.addConstraint(Sketcher.Constraint("Equal", 14, 16))
sketch4.addConstraint(Sketcher.Constraint("Equal", 12, 18))
sketch4.addConstraint(Sketcher.Constraint("Equal", 15, 19))
sketch4.addConstraint(Sketcher.Constraint("Equal", 18, 20))
sketch4.addConstraint(Sketcher.Constraint("Radius", 1, Q("1.5 mm")))
sketch4.addConstraint(Sketcher.Constraint("DistanceX", 7, 1, 7, 2, Q("0.5 mm")))
sketch4.addConstraint(Sketcher.Constraint("DistanceY", -1, 1, 1, 3, Q("3 mm")))
sketch4.addConstraint(Sketcher.Constraint("DistanceY", -1, 1, 6, 2, Q("7 mm")))
sketch4.addConstraint(Sketcher.Constraint("Angle", 2, Q("112.5 deg")))
sketch4.addConstraint(Sketcher.Constraint("Distance", 2, Q("1.2 mm")))
sketch4.addConstraint(Sketcher.Constraint("Distance", 3, Q("0.5 mm")))
sketch4.addConstraint(Sketcher.Constraint("DistanceX", 1, 3, -1, 1, Q("1.5 mm")))
sketch4.addConstraint(Sketcher.Constraint("Distance", 0, Q("2.52098 mm")))
sketch4.setExpression("Constraints[184]", "Params.sketch4_radius")
sketch4.setExpression("Constraints[185]", "Params.sketch4_width")
sketch4.setExpression("Constraints[189]", "Params.sketch4_length")
sketch4.setExpression("Constraints[190]", "Params.sketch4_length2")
pocket2 = doc.addObject("PartDesign::Pocket", "Pocket001")
body.addObject(pocket2)
pocket2.Profile = sketch4
pocket2.setExpression("Length", "Params.pocket2_length")
pocket2.Reversed = True

# Sketch on XZ plane
sketch5 = doc.addObject("Sketcher::SketchObject", "Sketch004")
body.addObject(sketch5)
sketch5.AttachmentSupport = (doc.XZ_Plane, [""])
sketch5.MapMode = "FlatFace"
sketch5.AttachmentOffset = App.Placement(Vector(0, 0, -0.7), App.Rotation())
sketch5.addGeometry(Part.LineSegment(Vector(-14, -12, 0), Vector(-14, 12, 0)), False)
sketch5.addGeometry(Part.LineSegment(Vector(-14, 12, 0), Vector(-13, 12, 0)), False)
sketch5.addGeometry(Part.LineSegment(Vector(-13, 12, 0), Vector(-13, -12, 0)), False)
sketch5.addGeometry(Part.LineSegment(Vector(-13, -12, 0), Vector(-14, -12, 0)), False)
sketch5.addConstraint(Sketcher.Constraint("Coincident", 0, 2, 1, 1))
sketch5.addConstraint(Sketcher.Constraint("Coincident", 1, 2, 2, 1))
sketch5.addConstraint(Sketcher.Constraint("Coincident", 2, 2, 3, 1))
sketch5.addConstraint(Sketcher.Constraint("Coincident", 3, 2, 0, 1))
sketch5.addConstraint(Sketcher.Constraint("Vertical", 0))
sketch5.addConstraint(Sketcher.Constraint("Horizontal", 1))
sketch5.addConstraint(Sketcher.Constraint("Vertical", 2))
sketch5.addConstraint(Sketcher.Constraint("Horizontal", 3))
sketch5.addConstraint(Sketcher.Constraint("DistanceX", 1, 1, 1, 2, Q("1 mm")))
sketch5.addConstraint(Sketcher.Constraint("DistanceY", 0, 1, 0, 2, Q("24 mm")))
sketch5.addConstraint(Sketcher.Constraint("DistanceX", 0, 2, -1, 1, Q("14 mm")))
sketch5.addConstraint(Sketcher.Constraint("DistanceY", -1, 1, 0, 2, Q("12 mm")))
sketch5.setExpression("Constraints[8]", "Params.sketch5_width")
sketch5.setExpression("Constraints[9]", "Params.sketch5_height")
pad3 = doc.addObject("PartDesign::Pad", "Pad002")
body.addObject(pad3)
pad3.Profile = sketch5
pad3.setExpression("Length", "Params.pad3_length")

# Sketch on XZ plane
sketch6 = doc.addObject("Sketcher::SketchObject", "Sketch005")
body.addObject(sketch6)
sketch6.AttachmentSupport = (doc.XZ_Plane, [""])
sketch6.MapMode = "FlatFace"
sketch6.AttachmentOffset = App.Placement(Vector(0, 0, -0.7), App.Rotation())
sketch6.addGeometry(Part.LineSegment(Vector(4.1, 2.8, 0), Vector(2.5, 2.8, 0)), False)
sketch6.addGeometry(Part.LineSegment(Vector(2.5, 2.8, 0), Vector(2.5, 3.2, 0)), False)
sketch6.addGeometry(Part.LineSegment(Vector(2.5, 3.2, 0), Vector(4.4, 3.2, 0)), False)
sketch6.addGeometry(Part.LineSegment(Vector(4.4, 3.2, 0), Vector(4.1, 2.8, 0)), False)
sketch6.addConstraint(Sketcher.Constraint("Coincident", 0, 2, 1, 1))
sketch6.addConstraint(Sketcher.Constraint("Coincident", 1, 2, 2, 1))
sketch6.addConstraint(Sketcher.Constraint("Coincident", 2, 2, 3, 1))
sketch6.addConstraint(Sketcher.Constraint("Coincident", 3, 2, 0, 1))
sketch6.addConstraint(Sketcher.Constraint("Horizontal", 0))
sketch6.addConstraint(Sketcher.Constraint("Vertical", 1))
sketch6.addConstraint(Sketcher.Constraint("Horizontal", 2))
sketch6.addConstraint(Sketcher.Constraint("Angle", 3, Q("-120 deg")))
sketch6.addConstraint(Sketcher.Constraint("DistanceY", 1, 1, 1, 2, Q("0.5 mm")))
sketch6.addConstraint(Sketcher.Constraint("DistanceX", -1, 1, 0, 2, Q("2.5 mm")))
sketch6.addConstraint(Sketcher.Constraint("DistanceY", -1, 1, 0, 2, Q("2.75 mm")))
sketch6.addConstraint(Sketcher.Constraint("DistanceX", 2, 1, 2, 2, Q("1.91784 mm")))
sketch6.setExpression("Constraints[8]", "Params.sketch6_height")
pocket3 = doc.addObject("PartDesign::Pocket", "Pocket002")
body.addObject(pocket3)
pocket3.Profile = sketch6
pocket3.setExpression("Length", "Params.pocket3_length")
pocket3.Reversed = True

doc.recompute()
